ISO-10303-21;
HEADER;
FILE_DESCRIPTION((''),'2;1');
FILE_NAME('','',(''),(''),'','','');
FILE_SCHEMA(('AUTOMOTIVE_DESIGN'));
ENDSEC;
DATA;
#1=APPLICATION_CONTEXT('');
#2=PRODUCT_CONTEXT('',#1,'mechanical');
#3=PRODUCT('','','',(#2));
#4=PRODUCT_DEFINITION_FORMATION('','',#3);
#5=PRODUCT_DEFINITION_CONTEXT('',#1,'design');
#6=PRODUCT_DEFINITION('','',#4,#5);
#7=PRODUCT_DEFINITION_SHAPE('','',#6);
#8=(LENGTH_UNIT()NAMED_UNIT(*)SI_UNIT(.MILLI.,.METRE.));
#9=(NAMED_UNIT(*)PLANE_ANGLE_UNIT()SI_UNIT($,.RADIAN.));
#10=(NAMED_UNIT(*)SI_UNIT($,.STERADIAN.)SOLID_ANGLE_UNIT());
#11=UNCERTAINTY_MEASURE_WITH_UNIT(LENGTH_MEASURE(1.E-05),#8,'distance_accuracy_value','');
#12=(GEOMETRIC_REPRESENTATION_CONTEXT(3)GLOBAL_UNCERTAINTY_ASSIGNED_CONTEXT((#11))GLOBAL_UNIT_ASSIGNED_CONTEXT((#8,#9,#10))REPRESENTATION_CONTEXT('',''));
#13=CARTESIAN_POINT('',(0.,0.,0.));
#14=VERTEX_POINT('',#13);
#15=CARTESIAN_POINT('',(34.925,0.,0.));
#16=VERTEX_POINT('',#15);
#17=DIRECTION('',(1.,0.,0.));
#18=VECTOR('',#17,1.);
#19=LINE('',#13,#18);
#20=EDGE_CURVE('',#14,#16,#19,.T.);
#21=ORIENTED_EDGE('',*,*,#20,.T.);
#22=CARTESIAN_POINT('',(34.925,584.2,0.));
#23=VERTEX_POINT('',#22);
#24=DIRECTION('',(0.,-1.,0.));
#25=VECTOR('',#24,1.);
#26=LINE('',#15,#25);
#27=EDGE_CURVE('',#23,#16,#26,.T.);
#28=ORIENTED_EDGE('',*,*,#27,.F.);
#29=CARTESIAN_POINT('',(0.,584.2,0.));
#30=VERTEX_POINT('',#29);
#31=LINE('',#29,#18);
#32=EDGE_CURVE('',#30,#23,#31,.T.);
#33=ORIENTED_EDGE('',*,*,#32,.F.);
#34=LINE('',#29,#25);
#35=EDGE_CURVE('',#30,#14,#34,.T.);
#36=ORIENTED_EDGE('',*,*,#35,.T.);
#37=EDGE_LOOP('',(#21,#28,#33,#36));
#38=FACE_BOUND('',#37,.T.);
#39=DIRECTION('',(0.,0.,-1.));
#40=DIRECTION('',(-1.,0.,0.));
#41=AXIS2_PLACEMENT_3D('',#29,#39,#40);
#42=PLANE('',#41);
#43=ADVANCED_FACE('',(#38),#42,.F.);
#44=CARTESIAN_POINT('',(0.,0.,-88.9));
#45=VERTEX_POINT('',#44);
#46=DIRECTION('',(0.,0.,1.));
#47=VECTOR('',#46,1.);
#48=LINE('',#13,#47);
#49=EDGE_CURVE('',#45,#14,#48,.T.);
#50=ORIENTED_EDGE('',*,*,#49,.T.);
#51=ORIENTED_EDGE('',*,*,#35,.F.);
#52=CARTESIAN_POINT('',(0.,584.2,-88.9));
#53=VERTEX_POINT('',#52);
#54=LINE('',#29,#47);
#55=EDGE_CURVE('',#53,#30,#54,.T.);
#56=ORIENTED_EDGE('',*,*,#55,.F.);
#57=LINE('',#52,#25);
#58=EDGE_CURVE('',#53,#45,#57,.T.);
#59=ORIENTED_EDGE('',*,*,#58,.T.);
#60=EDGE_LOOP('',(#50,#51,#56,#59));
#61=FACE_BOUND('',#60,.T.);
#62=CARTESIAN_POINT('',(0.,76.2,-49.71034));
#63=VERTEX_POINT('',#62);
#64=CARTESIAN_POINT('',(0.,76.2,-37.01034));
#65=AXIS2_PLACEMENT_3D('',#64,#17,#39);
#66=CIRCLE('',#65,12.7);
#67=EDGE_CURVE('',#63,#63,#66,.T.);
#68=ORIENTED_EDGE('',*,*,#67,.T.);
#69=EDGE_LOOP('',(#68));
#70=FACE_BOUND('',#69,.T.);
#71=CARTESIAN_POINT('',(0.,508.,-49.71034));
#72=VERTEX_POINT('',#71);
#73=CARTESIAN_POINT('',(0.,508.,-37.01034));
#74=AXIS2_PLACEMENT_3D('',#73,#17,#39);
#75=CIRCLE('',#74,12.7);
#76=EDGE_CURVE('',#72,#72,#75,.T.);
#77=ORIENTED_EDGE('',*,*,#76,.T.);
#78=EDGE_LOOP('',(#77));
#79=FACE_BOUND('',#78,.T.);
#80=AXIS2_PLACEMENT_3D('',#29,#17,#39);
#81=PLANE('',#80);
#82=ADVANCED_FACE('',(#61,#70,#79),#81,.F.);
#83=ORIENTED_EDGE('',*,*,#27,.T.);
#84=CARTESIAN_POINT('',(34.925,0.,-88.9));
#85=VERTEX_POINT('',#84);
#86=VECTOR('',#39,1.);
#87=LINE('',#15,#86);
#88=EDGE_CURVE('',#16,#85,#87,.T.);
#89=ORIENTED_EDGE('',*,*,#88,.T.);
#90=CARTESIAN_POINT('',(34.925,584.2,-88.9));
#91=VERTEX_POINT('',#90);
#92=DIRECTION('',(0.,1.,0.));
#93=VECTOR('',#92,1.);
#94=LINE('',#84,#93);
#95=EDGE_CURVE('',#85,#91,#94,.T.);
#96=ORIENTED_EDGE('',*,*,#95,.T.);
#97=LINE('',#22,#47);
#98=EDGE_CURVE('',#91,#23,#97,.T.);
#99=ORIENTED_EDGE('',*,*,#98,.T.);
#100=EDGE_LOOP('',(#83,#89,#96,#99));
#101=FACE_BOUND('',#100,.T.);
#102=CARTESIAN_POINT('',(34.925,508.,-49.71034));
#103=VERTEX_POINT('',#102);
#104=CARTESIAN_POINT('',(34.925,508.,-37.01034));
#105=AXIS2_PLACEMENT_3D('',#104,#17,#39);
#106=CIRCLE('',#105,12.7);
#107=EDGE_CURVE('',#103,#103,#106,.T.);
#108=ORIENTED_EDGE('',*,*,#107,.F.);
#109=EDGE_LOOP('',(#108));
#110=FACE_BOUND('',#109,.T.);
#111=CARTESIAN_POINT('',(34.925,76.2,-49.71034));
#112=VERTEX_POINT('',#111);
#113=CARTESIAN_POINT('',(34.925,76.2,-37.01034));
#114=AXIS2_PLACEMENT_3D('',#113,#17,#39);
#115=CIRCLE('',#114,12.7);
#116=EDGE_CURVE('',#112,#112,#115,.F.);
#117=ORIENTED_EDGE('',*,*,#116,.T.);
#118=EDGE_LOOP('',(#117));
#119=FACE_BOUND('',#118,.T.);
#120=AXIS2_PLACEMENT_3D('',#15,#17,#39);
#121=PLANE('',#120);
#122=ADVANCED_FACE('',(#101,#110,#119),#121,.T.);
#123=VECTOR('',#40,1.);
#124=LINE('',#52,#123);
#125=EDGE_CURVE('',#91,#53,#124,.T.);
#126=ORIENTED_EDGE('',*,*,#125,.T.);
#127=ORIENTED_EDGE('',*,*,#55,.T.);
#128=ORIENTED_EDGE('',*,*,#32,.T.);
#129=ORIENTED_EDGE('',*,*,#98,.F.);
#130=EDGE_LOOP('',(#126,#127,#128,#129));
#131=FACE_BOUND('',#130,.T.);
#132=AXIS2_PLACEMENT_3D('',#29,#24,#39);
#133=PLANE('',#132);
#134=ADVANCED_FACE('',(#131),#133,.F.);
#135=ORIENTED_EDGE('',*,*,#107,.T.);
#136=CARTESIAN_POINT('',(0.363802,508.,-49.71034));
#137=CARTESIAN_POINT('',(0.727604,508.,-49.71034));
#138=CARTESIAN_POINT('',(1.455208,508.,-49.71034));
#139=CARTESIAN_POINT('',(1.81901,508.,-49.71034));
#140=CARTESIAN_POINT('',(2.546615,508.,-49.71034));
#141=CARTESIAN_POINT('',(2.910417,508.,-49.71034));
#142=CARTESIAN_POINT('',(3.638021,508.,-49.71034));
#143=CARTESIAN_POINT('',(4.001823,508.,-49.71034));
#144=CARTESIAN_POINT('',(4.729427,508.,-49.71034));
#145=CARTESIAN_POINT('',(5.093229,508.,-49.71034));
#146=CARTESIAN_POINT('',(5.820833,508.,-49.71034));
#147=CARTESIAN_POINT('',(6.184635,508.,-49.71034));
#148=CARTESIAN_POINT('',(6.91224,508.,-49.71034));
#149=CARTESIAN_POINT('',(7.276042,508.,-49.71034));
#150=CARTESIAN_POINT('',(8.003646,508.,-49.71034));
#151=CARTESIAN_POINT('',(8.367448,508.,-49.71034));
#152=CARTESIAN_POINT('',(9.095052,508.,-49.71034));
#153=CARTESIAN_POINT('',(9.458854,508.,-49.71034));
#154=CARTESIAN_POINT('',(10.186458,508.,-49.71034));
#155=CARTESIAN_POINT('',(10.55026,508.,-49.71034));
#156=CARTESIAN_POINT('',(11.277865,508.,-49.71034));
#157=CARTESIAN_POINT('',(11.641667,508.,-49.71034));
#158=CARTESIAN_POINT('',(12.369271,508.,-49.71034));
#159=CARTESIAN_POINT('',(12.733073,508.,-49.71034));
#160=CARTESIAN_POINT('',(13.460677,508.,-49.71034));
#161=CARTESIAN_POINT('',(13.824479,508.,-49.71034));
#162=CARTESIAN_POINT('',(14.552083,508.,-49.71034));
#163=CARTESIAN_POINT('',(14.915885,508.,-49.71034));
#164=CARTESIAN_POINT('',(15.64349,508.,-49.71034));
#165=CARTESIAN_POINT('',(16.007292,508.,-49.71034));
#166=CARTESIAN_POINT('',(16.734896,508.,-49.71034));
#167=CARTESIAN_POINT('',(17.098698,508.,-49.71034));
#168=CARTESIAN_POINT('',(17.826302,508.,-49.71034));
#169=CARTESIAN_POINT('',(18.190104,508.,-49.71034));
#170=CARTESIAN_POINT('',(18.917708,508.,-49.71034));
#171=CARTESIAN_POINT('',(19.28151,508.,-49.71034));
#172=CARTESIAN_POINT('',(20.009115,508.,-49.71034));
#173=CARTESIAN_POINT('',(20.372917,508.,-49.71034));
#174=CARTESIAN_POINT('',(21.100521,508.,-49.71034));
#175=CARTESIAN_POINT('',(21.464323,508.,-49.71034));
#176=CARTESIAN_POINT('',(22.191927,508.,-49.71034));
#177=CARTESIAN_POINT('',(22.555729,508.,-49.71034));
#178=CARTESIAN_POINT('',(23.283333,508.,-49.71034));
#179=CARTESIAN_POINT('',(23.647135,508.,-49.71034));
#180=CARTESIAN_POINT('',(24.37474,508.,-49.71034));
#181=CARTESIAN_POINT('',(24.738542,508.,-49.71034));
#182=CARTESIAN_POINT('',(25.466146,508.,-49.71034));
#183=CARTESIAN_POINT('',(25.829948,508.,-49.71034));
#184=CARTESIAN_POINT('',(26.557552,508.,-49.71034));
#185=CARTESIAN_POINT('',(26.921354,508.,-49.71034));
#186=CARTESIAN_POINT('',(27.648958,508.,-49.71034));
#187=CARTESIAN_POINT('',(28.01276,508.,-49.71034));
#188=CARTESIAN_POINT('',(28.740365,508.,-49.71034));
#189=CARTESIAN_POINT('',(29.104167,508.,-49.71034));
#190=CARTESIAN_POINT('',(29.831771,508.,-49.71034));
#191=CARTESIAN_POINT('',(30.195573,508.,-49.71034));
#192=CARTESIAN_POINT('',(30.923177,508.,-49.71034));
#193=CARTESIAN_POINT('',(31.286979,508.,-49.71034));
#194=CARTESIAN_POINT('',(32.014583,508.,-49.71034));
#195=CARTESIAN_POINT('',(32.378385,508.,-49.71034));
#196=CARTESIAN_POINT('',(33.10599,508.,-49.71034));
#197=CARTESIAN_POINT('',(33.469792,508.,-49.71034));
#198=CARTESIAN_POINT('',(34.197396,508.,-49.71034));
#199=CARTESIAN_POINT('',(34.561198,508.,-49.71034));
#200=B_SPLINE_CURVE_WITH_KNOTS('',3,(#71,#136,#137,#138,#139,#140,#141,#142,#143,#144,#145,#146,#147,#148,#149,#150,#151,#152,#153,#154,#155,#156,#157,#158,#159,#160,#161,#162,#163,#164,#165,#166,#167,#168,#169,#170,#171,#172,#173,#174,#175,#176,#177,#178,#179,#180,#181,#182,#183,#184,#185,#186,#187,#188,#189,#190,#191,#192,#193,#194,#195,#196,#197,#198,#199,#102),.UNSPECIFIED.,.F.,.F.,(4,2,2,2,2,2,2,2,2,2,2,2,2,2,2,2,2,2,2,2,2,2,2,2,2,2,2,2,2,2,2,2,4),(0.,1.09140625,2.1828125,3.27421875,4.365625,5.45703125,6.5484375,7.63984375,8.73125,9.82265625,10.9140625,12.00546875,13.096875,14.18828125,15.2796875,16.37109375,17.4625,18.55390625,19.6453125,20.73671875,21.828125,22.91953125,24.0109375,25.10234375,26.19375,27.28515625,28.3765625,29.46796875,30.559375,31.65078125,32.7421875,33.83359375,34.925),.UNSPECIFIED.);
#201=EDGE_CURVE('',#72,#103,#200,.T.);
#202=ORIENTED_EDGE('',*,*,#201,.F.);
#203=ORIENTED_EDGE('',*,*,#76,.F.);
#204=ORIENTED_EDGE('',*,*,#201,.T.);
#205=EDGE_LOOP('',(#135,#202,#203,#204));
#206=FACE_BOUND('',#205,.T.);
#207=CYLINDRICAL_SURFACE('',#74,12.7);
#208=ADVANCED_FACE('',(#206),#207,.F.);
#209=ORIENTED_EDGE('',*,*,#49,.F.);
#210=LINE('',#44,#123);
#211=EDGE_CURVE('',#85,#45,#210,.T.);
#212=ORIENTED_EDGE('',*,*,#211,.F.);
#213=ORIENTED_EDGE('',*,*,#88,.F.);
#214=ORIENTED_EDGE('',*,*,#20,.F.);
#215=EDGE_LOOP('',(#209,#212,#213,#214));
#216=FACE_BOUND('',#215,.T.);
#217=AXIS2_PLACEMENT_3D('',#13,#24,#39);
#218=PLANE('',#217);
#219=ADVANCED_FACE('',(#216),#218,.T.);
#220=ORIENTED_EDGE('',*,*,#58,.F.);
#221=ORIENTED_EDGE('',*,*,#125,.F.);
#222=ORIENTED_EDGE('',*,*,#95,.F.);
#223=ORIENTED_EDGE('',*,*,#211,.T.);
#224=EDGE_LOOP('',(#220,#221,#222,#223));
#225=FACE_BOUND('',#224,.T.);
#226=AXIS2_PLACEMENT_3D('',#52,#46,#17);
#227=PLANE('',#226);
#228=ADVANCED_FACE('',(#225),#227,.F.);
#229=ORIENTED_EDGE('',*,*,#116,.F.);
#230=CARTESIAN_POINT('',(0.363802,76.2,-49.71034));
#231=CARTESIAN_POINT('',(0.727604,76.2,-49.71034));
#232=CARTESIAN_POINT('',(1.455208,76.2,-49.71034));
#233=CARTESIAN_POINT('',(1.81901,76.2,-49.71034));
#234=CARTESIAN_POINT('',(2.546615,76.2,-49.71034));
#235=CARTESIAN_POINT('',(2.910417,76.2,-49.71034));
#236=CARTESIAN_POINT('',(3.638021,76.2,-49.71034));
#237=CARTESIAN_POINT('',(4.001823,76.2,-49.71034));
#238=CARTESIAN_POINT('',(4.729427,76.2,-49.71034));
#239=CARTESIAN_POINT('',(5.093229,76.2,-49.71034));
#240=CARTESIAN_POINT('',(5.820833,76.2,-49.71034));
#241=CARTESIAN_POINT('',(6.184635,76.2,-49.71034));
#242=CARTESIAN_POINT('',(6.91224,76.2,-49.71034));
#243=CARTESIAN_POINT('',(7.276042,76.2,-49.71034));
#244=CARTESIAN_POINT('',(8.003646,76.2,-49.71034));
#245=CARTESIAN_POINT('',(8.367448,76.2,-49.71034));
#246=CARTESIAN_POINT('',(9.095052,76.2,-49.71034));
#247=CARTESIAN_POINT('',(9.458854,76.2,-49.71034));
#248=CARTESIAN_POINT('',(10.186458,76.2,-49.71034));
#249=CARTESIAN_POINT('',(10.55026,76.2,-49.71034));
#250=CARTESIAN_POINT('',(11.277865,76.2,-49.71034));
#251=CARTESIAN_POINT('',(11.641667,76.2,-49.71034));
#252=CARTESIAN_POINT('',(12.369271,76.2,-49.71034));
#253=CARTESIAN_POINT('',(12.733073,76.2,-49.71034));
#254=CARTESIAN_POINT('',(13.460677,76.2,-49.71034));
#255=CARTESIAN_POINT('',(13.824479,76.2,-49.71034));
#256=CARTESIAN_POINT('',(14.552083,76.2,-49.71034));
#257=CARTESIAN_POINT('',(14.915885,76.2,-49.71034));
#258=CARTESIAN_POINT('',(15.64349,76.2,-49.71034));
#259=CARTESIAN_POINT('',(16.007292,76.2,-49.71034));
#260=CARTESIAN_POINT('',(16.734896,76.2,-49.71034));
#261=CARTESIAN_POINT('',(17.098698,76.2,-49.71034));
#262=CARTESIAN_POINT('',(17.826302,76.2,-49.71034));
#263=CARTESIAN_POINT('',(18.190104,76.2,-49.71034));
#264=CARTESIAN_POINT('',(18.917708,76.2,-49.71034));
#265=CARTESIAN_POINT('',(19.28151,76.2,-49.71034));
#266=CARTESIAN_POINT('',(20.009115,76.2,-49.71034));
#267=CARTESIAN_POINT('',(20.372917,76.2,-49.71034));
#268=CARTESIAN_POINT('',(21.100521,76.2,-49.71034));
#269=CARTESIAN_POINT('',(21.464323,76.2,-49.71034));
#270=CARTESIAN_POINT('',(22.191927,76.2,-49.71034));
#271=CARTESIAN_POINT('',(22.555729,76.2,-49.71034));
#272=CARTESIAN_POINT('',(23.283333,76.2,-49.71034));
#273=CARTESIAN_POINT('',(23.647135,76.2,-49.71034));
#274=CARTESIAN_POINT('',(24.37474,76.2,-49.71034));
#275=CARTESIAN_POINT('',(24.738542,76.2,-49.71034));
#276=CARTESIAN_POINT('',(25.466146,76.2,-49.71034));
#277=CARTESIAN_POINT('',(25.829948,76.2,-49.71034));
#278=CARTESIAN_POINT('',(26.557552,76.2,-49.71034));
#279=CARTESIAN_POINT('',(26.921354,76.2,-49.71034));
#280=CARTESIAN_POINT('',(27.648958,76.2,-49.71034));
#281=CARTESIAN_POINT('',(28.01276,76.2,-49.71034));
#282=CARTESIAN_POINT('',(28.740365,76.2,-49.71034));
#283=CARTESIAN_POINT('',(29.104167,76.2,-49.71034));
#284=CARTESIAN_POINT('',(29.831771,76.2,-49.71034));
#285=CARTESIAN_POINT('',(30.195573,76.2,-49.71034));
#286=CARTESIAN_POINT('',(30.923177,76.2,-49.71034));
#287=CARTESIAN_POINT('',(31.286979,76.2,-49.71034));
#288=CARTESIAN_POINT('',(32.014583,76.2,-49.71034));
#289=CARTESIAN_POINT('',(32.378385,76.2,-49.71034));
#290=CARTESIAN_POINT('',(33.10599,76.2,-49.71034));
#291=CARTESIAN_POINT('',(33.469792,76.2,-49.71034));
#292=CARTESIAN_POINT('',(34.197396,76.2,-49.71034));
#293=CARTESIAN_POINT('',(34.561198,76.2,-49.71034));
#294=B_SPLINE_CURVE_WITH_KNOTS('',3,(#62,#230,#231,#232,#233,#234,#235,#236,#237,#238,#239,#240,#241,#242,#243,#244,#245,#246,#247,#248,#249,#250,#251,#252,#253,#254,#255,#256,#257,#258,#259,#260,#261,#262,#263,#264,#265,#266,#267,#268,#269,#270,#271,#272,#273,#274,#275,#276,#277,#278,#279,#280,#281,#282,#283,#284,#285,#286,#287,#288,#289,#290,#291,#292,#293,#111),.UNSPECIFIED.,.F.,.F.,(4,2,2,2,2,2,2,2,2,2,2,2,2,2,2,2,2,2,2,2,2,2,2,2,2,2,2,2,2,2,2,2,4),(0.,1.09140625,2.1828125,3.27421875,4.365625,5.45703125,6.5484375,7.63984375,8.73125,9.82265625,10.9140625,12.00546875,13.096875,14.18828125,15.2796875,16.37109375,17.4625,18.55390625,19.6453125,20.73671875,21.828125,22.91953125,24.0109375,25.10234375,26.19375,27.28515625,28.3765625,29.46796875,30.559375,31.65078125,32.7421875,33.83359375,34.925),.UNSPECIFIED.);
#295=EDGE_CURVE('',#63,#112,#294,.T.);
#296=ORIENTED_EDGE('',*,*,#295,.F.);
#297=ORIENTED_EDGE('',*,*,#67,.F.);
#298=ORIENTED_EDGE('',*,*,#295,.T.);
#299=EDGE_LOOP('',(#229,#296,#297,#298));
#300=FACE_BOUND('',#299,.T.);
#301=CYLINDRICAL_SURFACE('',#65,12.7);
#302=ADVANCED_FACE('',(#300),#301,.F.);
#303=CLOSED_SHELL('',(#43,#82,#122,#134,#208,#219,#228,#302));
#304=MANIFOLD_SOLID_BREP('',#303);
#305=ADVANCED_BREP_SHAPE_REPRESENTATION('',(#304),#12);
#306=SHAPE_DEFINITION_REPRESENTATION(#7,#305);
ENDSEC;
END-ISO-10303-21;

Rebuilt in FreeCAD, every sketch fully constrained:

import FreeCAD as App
import Part
import Sketcher
from FreeCAD import Vector
Q = App.Units.Quantity


def add_polygon(sketch, points):
    """Adds a closed chain of lines whose ends are joined by coincident constraints."""
    first, n = sketch.GeometryCount, len(points)
    for a, b in zip(points, points[1:] + points[:1]):
        sketch.addGeometry(Part.LineSegment(App.Vector(*a, 0), App.Vector(*b, 0)), False)
    for i in range(n):
        sketch.addConstraint(Sketcher.Constraint("Coincident", first + i, 2, first + (i + 1) % n, 1))

doc = App.newDocument("Part")
params = doc.addObject("Spreadsheet::Sheet", "Params")
for row, (alias, value) in enumerate([
    ("sketch1_width", "1.5 in"),
    ("sketch1_height", "3.5 in"),
    ("pad1_length", "23 in"),
    ("sketch2_diameter", "1 in"),
    ("sketch3_diameter", "1 in"),
    ("sketch3_width", "23 in"),
    ("sketch3_height", "3.5 in"),
    ("pocket2_length", "0.125 in"),
], start=1):
    params.set(f"A{row}", alias)
    params.set(f"B{row}", "=" + value)
    params.setAlias(f"B{row}", alias)

body = doc.addObject("PartDesign::Body", "Body")

# Sketch on XZ plane
sketch1 = doc.addObject("Sketcher::SketchObject", "Sketch")
body.addObject(sketch1)
sketch1.AttachmentSupport = (doc.XZ_Plane, [""])
sketch1.MapMode = "FlatFace"
add_polygon(sketch1, [(0, -89), (0, 0), (38, 0), (38, -89)])  # lines 0-3
sketch1.addConstraint([
    Sketcher.Constraint("Vertical", 0),
    Sketcher.Constraint("Horizontal", 1),
    Sketcher.Constraint("Vertical", 2),
    Sketcher.Constraint("Horizontal", 3),
    Sketcher.Constraint("Coincident", 0, 2, -1, 1),
    Sketcher.Constraint("DistanceX", 1, 1, 1, 2, Q("1.5 in")),
    Sketcher.Constraint("DistanceY", 0, 1, 0, 2, Q("3.5 in")),
])
sketch1.setExpression("Constraints[9]", "Params.sketch1_width")
sketch1.setExpression("Constraints[10]", "Params.sketch1_height")
pad1 = doc.addObject("PartDesign::Pad", "Pad")
body.addObject(pad1)
pad1.Profile = sketch1
pad1.setExpression("Length", "Params.pad1_length")
pad1.Reversed = True

# Sketch on YZ plane
sketch2 = doc.addObject("Sketcher::SketchObject", "Sketch001")
body.addObject(sketch2)
sketch2.AttachmentSupport = (doc.YZ_Plane, [""])
sketch2.MapMode = "FlatFace"
sketch2.AttachmentOffset = App.Placement(Vector(0, 0, 1.5 * 25.4), App.Rotation())
sketch2.addGeometry([
    Part.Circle(Vector(76, -37, 0), Vector(0, 0, 1), 13),
    Part.Circle(Vector(508, -37, 0), Vector(0, 0, 1), 13),
], False)
sketch2.addConstraint([
    Sketcher.Constraint("Equal", 0, 1),
    Sketcher.Constraint("Horizontal", 0, 3, 1, 3),
    Sketcher.Constraint("Diameter", 0, Q("1 in")),
    Sketcher.Constraint("DistanceX", -1, 1, 0, 3, Q("3 in")),
    Sketcher.Constraint("DistanceX", -1, 1, 1, 3, Q("20 in")),
    Sketcher.Constraint("DistanceY", 0, 3, -1, 1, Q("1.4571 in")),
])
sketch2.setExpression("Constraints[2]", "Params.sketch2_diameter")
pocket1 = doc.addObject("PartDesign::Pocket", "Pocket")
body.addObject(pocket1)
pocket1.Profile = sketch2
pocket1.Type = "ThroughAll"

# Sketch on YZ plane
sketch3 = doc.addObject("Sketcher::SketchObject", "Sketch002")
body.addObject(sketch3)
sketch3.AttachmentSupport = (doc.YZ_Plane, [""])
sketch3.MapMode = "FlatFace"
sketch3.AttachmentOffset = App.Placement(Vector(0, 0, 1.5 * 25.4), App.Rotation())
add_polygon(sketch3, [(584, 0), (0, 0), (0, -89), (584, -89)])  # lines 0-3
sketch3.addGeometry(Part.Circle(Vector(76, -37, 0), Vector(0, 0, 1), 13), False)  # 4
sketch3.addGeometry(Part.Circle(Vector(508, -37, 0), Vector(0, 0, 1), 13), False)  # 5
sketch3.addConstraint([
    Sketcher.Constraint("Horizontal", 0),
    Sketcher.Constraint("Vertical", 1),
    Sketcher.Constraint("Horizontal", 2),
    Sketcher.Constraint("Vertical", 3),
    Sketcher.Constraint("Coincident", 0, 2, -1, 1),
    Sketcher.Constraint("Equal", 4, 5),
    Sketcher.Constraint("Horizontal", 4, 3, 5, 3),
    Sketcher.Constraint("Diameter", 4, Q("1 in")),
    Sketcher.Constraint("DistanceX", 0, 2, 0, 1, Q("23 in")),
    Sketcher.Constraint("DistanceY", 1, 2, 1, 1, Q("3.5 in")),
    Sketcher.Constraint("DistanceX", -1, 1, 4, 3, Q("3 in")),
    Sketcher.Constraint("DistanceX", -1, 1, 5, 3, Q("20 in")),
    Sketcher.Constraint("DistanceY", 4, 3, -1, 1, Q("1.4571 in")),
])
sketch3.setExpression("Constraints[11]", "Params.sketch3_diameter")
sketch3.setExpression("Constraints[12]", "Params.sketch3_width")
sketch3.setExpression("Constraints[13]", "Params.sketch3_height")
pocket2 = doc.addObject("PartDesign::Pocket", "Pocket001")
body.addObject(pocket2)
pocket2.Profile = sketch3
pocket2.setExpression("Length", "Params.pocket2_length")

doc.recompute()
